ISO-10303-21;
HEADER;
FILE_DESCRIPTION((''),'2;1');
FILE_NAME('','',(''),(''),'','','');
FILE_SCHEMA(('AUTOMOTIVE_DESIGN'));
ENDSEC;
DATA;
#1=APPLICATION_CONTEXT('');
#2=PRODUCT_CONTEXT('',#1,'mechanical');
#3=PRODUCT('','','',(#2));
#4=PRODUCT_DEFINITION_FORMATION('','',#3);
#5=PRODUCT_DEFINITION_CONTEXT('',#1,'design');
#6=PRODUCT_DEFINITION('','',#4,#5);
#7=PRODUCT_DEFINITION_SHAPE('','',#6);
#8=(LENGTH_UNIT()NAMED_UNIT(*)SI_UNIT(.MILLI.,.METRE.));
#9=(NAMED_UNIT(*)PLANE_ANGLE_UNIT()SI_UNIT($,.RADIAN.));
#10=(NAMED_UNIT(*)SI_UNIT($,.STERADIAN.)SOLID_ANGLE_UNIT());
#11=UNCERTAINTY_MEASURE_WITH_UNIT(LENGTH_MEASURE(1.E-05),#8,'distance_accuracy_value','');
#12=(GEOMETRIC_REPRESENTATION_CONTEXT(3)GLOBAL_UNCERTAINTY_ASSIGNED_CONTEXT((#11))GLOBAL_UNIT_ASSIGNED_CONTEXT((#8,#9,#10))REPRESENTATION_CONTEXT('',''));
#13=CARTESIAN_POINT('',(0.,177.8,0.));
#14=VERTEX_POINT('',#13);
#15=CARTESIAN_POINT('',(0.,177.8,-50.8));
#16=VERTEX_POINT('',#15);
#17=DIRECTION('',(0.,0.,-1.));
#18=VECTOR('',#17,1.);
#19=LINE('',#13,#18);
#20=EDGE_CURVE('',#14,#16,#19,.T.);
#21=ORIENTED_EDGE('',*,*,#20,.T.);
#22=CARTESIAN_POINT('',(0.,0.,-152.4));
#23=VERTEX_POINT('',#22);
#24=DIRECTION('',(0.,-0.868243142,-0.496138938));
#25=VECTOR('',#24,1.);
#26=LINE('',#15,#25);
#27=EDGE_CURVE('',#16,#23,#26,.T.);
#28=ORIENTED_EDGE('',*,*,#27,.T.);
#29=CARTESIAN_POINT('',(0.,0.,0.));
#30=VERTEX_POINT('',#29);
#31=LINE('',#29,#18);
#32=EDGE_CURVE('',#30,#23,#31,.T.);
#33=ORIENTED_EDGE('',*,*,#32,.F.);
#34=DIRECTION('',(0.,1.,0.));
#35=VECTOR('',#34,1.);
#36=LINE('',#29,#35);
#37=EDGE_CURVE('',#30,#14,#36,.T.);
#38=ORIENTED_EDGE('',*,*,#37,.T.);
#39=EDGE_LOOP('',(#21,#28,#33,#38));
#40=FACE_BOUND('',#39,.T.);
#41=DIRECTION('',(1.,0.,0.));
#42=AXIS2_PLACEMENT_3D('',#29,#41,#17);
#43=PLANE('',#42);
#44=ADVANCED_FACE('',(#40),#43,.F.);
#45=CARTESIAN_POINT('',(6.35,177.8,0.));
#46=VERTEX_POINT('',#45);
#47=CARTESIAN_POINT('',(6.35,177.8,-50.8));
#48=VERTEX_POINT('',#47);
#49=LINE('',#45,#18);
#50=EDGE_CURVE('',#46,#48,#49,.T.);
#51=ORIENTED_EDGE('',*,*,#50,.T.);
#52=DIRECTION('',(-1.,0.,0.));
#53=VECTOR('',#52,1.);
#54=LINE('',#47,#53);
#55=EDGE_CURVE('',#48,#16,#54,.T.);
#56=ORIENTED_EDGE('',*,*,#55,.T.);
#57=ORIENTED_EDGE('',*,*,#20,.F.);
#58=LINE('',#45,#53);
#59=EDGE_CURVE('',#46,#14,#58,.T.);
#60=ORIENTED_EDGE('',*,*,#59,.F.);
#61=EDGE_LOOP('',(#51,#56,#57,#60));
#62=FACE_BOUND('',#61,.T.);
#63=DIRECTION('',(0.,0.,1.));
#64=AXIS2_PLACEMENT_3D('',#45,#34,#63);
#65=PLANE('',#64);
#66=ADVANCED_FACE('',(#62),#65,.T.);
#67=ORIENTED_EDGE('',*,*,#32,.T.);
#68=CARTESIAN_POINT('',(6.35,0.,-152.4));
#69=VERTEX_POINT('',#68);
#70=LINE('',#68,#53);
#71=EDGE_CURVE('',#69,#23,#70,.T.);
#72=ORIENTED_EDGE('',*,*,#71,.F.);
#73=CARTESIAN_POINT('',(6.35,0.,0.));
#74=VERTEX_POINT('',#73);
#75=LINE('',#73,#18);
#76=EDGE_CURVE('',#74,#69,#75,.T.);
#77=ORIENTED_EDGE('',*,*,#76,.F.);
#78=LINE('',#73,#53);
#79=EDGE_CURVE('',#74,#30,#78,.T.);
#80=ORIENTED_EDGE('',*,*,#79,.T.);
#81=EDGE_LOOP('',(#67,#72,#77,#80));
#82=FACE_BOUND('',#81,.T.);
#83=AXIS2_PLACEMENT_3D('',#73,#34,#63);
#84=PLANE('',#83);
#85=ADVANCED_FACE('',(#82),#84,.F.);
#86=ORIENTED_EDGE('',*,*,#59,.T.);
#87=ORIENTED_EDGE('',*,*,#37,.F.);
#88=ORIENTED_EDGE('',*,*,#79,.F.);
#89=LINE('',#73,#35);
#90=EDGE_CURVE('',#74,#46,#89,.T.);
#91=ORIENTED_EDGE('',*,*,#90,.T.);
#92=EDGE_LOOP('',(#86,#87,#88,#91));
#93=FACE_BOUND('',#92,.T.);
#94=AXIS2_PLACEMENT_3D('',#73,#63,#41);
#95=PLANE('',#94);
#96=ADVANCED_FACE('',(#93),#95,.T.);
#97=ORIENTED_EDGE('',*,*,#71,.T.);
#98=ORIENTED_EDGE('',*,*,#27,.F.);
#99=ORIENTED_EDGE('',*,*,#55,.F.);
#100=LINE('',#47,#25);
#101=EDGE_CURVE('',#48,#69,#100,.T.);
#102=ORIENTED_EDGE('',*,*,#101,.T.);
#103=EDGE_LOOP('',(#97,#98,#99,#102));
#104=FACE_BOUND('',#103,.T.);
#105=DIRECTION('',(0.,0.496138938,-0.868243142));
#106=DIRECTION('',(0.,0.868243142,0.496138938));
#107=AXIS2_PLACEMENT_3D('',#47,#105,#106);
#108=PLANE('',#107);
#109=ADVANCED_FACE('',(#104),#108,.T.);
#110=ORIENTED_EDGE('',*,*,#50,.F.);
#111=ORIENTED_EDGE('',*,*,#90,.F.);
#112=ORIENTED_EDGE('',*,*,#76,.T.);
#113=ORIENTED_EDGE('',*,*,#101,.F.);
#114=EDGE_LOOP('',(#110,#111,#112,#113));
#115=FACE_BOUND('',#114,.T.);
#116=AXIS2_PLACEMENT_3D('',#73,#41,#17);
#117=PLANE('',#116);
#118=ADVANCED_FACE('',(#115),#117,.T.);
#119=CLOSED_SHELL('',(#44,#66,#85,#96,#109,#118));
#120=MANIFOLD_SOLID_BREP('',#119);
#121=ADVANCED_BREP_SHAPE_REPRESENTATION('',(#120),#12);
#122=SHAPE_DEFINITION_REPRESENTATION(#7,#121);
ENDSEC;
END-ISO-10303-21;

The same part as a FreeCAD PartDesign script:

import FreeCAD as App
import Part
import Sketcher
Q = App.Units.Quantity

doc = App.newDocument("Part")
body = doc.addObject("PartDesign::Body", "Body")

# Sketch on YZ plane
sketch1 = body.newObject("Sketcher::SketchObject", "Sketch")
sketch1.AttachmentSupport = (doc.getObject("YZ_Plane"), [""])
sketch1.MapMode = "FlatFace"
sketch1.addGeometry(Part.LineSegment(App.Vector(0, 0, 0), App.Vector(0, -152, 0)), False)
sketch1.addGeometry(Part.LineSegment(App.Vector(0, -152, 0), App.Vector(178, -51, 0)), False)
sketch1.addGeometry(Part.LineSegment(App.Vector(178, -51, 0), App.Vector(178, 0, 0)), False)
sketch1.addGeometry(Part.LineSegment(App.Vector(178, 0, 0), App.Vector(0, 0, 0)), False)
sketch1.addConstraint(Sketcher.Constraint("Coincident", 0, 2, 1, 1))
sketch1.addConstraint(Sketcher.Constraint("Coincident", 1, 2, 2, 1))
sketch1.addConstraint(Sketcher.Constraint("Coincident", 2, 2, 3, 1))
sketch1.addConstraint(Sketcher.Constraint("Coincident", 3, 2, 0, 1))
sketch1.addConstraint(Sketcher.Constraint("Vertical", 0))
sketch1.addConstraint(Sketcher.Constraint("Vertical", 2))
sketch1.addConstraint(Sketcher.Constraint("Horizontal", 3))
sketch1.addConstraint(Sketcher.Constraint("Coincident", 3, 2, -1, 1))
sketch1.addConstraint(Sketcher.Constraint("DistanceX", 3, 2, 3, 1, Q("7 in")))
sketch1.addConstraint(Sketcher.Constraint("DistanceY", 0, 2, 0, 1, Q("6 in")))
sketch1.addConstraint(Sketcher.Constraint("DistanceY", 2, 1, 2, 2, Q("2 in")))
pad1 = body.newObject("PartDesign::Pad", "Pad")
pad1.Profile = sketch1
pad1.Length = Q("0.25 in")

doc.recompute()
